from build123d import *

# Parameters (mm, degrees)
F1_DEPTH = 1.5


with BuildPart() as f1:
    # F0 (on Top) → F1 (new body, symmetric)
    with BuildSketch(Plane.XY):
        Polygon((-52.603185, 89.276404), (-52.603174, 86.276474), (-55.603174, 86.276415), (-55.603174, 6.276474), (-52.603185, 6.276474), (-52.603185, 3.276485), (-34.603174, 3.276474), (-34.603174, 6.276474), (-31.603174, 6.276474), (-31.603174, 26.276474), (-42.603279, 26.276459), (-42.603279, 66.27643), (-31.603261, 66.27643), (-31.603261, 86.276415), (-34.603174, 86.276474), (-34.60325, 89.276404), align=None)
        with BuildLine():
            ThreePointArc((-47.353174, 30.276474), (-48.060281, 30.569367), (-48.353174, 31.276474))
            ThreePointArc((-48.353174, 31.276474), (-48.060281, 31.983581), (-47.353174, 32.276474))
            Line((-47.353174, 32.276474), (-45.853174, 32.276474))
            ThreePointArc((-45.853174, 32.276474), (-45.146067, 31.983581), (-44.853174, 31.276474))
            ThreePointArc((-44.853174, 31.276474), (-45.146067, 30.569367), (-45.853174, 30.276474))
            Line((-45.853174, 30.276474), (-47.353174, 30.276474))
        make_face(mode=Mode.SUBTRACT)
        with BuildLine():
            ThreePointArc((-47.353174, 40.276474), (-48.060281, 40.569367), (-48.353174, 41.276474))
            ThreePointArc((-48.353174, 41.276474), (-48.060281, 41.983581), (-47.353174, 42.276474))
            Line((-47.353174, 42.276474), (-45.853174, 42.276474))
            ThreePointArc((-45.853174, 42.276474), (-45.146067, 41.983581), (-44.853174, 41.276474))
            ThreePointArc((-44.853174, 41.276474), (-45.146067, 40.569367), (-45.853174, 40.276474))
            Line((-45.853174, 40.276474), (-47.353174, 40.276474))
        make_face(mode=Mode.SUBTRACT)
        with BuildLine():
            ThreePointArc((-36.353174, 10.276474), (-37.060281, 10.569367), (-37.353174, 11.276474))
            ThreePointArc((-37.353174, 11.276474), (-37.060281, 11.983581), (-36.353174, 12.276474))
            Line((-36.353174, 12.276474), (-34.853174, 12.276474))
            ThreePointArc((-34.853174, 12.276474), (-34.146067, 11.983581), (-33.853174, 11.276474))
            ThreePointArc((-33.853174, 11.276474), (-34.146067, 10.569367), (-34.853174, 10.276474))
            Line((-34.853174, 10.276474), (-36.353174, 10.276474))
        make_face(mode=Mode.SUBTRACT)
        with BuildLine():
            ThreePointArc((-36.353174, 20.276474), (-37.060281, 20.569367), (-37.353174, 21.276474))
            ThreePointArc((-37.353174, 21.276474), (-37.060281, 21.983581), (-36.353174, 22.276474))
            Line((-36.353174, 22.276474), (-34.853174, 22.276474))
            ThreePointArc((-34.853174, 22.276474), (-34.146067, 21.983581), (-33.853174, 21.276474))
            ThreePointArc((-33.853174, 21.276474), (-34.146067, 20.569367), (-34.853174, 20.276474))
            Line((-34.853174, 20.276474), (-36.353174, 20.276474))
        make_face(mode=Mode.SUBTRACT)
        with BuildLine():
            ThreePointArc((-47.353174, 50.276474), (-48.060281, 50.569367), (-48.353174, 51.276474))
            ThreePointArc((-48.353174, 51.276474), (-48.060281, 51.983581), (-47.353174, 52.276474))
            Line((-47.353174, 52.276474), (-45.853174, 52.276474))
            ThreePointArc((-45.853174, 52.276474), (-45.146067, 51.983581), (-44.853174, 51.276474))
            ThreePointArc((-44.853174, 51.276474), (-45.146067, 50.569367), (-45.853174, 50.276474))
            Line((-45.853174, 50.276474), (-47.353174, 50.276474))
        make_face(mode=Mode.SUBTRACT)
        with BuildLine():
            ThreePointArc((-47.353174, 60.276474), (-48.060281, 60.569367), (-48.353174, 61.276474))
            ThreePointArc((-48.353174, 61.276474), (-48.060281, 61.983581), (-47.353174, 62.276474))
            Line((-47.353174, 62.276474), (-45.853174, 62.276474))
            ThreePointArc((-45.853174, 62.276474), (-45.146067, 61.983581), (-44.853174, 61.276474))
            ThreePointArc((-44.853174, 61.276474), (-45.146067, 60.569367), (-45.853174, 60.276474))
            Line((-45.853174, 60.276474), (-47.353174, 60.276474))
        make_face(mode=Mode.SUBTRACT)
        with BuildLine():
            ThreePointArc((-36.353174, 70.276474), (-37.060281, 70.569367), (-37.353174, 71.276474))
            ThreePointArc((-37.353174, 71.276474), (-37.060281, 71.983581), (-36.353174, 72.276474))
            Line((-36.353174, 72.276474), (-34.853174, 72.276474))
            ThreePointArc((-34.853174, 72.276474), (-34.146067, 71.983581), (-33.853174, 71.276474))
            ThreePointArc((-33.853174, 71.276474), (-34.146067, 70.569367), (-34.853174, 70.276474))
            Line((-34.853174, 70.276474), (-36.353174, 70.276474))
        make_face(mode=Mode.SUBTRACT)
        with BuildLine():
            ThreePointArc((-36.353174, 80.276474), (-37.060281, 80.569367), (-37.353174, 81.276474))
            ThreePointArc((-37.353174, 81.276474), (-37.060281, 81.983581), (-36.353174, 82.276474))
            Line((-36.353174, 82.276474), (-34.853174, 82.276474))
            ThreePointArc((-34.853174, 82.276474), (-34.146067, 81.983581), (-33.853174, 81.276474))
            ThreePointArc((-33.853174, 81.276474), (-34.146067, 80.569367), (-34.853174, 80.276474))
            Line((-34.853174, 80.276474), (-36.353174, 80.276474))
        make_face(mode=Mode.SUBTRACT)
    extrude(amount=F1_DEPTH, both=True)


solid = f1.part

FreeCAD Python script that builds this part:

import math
import FreeCAD as App
import Part
import Sketcher
Q = App.Units.Quantity


def add_polygon(sketch, points):
    """Adds a closed chain of lines whose ends are joined by coincident constraints."""
    first, n = sketch.GeometryCount, len(points)
    for a, b in zip(points, points[1:] + points[:1]):
        sketch.addGeometry(Part.LineSegment(App.Vector(*a, 0), App.Vector(*b, 0)), False)
    for i in range(n):
        sketch.addConstraint(Sketcher.Constraint("Coincident", first + i, 2, first + (i + 1) % n, 1))

doc = App.newDocument("Part")
params = doc.addObject("Spreadsheet::Sheet", "Params")
for row, (alias, value) in enumerate([
    ("sketch1_radius", "0.999999 mm"),
    ("sketch1_radius2", "0.999999 mm"),
    ("sketch1_radius3", "0.999999 mm"),
    ("sketch1_radius4", "0.999999 mm"),
    ("sketch1_radius5", "0.999999 mm"),
    ("pad1_length", "3 mm"),
], start=1):
    params.set(f"A{row}", alias)
    params.set(f"B{row}", "=" + value)
    params.setAlias(f"B{row}", alias)

body = doc.addObject("PartDesign::Body", "Body")

sketch1 = doc.addObject("Sketcher::SketchObject", "Sketch")
body.addObject(sketch1)
sketch1.AttachmentSupport = (doc.XY_Plane, [""])
sketch1.MapMode = "FlatFace"
add_polygon(sketch1, [(-52.603185, 89.276404), (-52.603174, 86.276474), (-55.603174, 86.276415), (-55.603174, 6.276474), (-52.603185, 6.276474), (-52.603185, 3.276485), (-34.603174, 3.276474), (-34.603174, 6.276474), (-31.603174, 6.276474), (-31.603174, 26.276474), (-42.603279, 26.276459), (-42.603279, 66.27643), (-31.603261, 66.27643), (-31.603261, 86.276415), (-34.603174, 86.276474), (-34.60325, 89.276404)])
sketch1.addGeometry(Part.LineSegment(App.Vector(-45.853174, 30.276474, 0), App.Vector(-47.353174, 30.276474, 0)), False)
sketch1.addGeometry(Part.ArcOfCircle(Part.Circle(App.Vector(-47.353175, 31.276473, 0), App.Vector(0, 0, 1), 0.999999), math.radians(179.999957), math.radians(270.000043)), False)
sketch1.addGeometry(Part.ArcOfCircle(Part.Circle(App.Vector(-47.353175, 31.276475, 0), App.Vector(0, 0, 1), 0.999999), math.radians(89.999957), math.radians(180.000043)), False)
sketch1.addGeometry(Part.LineSegment(App.Vector(-47.353174, 32.276474, 0), App.Vector(-45.853174, 32.276474, 0)), False)
sketch1.addGeometry(Part.ArcOfCircle(Part.Circle(App.Vector(-45.853173, 31.276475, 0), App.Vector(0, 0, 1), 0.999999), math.radians(-0.000043), math.radians(90.000043)), False)
sketch1.addGeometry(Part.ArcOfCircle(Part.Circle(App.Vector(-45.853173, 31.276473, 0), App.Vector(0, 0, 1), 0.999999), math.radians(-90.000043), math.radians(0.000043)), False)
sketch1.addGeometry(Part.LineSegment(App.Vector(-45.853174, 40.276474, 0), App.Vector(-47.353174, 40.276474, 0)), False)
sketch1.addGeometry(Part.ArcOfCircle(Part.Circle(App.Vector(-47.353175, 41.276473, 0), App.Vector(0, 0, 1), 0.999999), math.radians(179.999957), math.radians(270.000043)), False)
sketch1.addGeometry(Part.ArcOfCircle(Part.Circle(App.Vector(-47.353175, 41.276475, 0), App.Vector(0, 0, 1), 0.999999), math.radians(89.999957), math.radians(180.000043)), False)
sketch1.addGeometry(Part.LineSegment(App.Vector(-47.353174, 42.276474, 0), App.Vector(-45.853174, 42.276474, 0)), False)
sketch1.addGeometry(Part.ArcOfCircle(Part.Circle(App.Vector(-45.853173, 41.276475, 0), App.Vector(0, 0, 1), 0.999999), math.radians(-0.000043), math.radians(90.000043)), False)
sketch1.addGeometry(Part.ArcOfCircle(Part.Circle(App.Vector(-45.853173, 41.276473, 0), App.Vector(0, 0, 1), 0.999999), math.radians(-90.000043), math.radians(0.000043)), False)
sketch1.addGeometry(Part.LineSegment(App.Vector(-34.853174, 10.276474, 0), App.Vector(-36.353174, 10.276474, 0)), False)
sketch1.addGeometry(Part.ArcOfCircle(Part.Circle(App.Vector(-36.353175, 11.276473, 0), App.Vector(0, 0, 1), 0.999999), math.radians(179.999957), math.radians(270.000043)), False)
sketch1.addGeometry(Part.ArcOfCircle(Part.Circle(App.Vector(-36.353175, 11.276475, 0), App.Vector(0, 0, 1), 0.999999), math.radians(89.999957), math.radians(180.000043)), False)
sketch1.addGeometry(Part.LineSegment(App.Vector(-36.353174, 12.276474, 0), App.Vector(-34.853174, 12.276474, 0)), False)
sketch1.addGeometry(Part.ArcOfCircle(Part.Circle(App.Vector(-34.853173, 11.276475, 0), App.Vector(0, 0, 1), 0.999999), math.radians(-0.000043), math.radians(90.000043)), False)
sketch1.addGeometry(Part.ArcOfCircle(Part.Circle(App.Vector(-34.853173, 11.276473, 0), App.Vector(0, 0, 1), 0.999999), math.radians(-90.000043), math.radians(0.000043)), False)
sketch1.addGeometry(Part.LineSegment(App.Vector(-34.853174, 20.276474, 0), App.Vector(-36.353174, 20.276474, 0)), False)
sketch1.addGeometry(Part.ArcOfCircle(Part.Circle(App.Vector(-36.353175, 21.276473, 0), App.Vector(0, 0, 1), 0.999999), math.radians(179.999957), math.radians(270.000043)), False)
sketch1.addGeometry(Part.ArcOfCircle(Part.Circle(App.Vector(-36.353175, 21.276475, 0), App.Vector(0, 0, 1), 0.999999), math.radians(89.999957), math.radians(180.000043)), False)
sketch1.addGeometry(Part.LineSegment(App.Vector(-36.353174, 22.276474, 0), App.Vector(-34.853174, 22.276474, 0)), False)
sketch1.addGeometry(Part.ArcOfCircle(Part.Circle(App.Vector(-34.853173, 21.276475, 0), App.Vector(0, 0, 1), 0.999999), math.radians(-0.000043), math.radians(90.000043)), False)
sketch1.addGeometry(Part.ArcOfCircle(Part.Circle(App.Vector(-34.853173, 21.276473, 0), App.Vector(0, 0, 1), 0.999999), math.radians(-90.000043), math.radians(0.000043)), False)
sketch1.addGeometry(Part.LineSegment(App.Vector(-45.853174, 50.276474, 0), App.Vector(-47.353174, 50.276474, 0)), False)
sketch1.addGeometry(Part.ArcOfCircle(Part.Circle(App.Vector(-47.353175, 51.276473, 0), App.Vector(0, 0, 1), 0.999999), math.radians(179.999957), math.radians(270.000043)), False)
sketch1.addGeometry(Part.ArcOfCircle(Part.Circle(App.Vector(-47.353175, 51.276475, 0), App.Vector(0, 0, 1), 0.999999), math.radians(89.999957), math.radians(180.000043)), False)
sketch1.addGeometry(Part.LineSegment(App.Vector(-47.353174, 52.276474, 0), App.Vector(-45.853174, 52.276474, 0)), False)
sketch1.addGeometry(Part.ArcOfCircle(Part.Circle(App.Vector(-45.853173, 51.276475, 0), App.Vector(0, 0, 1), 0.999999), math.radians(-0.000043), math.radians(90.000043)), False)
sketch1.addGeometry(Part.ArcOfCircle(Part.Circle(App.Vector(-45.853173, 51.276473, 0), App.Vector(0, 0, 1), 0.999999), math.radians(-90.000043), math.radians(0.000043)), False)
sketch1.addGeometry(Part.LineSegment(App.Vector(-45.853174, 60.276474, 0), App.Vector(-47.353174, 60.276474, 0)), False)
sketch1.addGeometry(Part.ArcOfCircle(Part.Circle(App.Vector(-47.353175, 61.276473, 0), App.Vector(0, 0, 1), 0.999999), math.radians(179.999957), math.radians(270.000043)), False)
sketch1.addGeometry(Part.ArcOfCircle(Part.Circle(App.Vector(-47.353175, 61.276475, 0), App.Vector(0, 0, 1), 0.999999), math.radians(89.999957), math.radians(180.000043)), False)
sketch1.addGeometry(Part.LineSegment(App.Vector(-47.353174, 62.276474, 0), App.Vector(-45.853174, 62.276474, 0)), False)
sketch1.addGeometry(Part.ArcOfCircle(Part.Circle(App.Vector(-45.853173, 61.276475, 0), App.Vector(0, 0, 1), 0.999999), math.radians(-0.000043), math.radians(90.000043)), False)
sketch1.addGeometry(Part.ArcOfCircle(Part.Circle(App.Vector(-45.853173, 61.276473, 0), App.Vector(0, 0, 1), 0.999999), math.radians(-90.000043), math.radians(0.000043)), False)
sketch1.addGeometry(Part.LineSegment(App.Vector(-34.853174, 70.276474, 0), App.Vector(-36.353174, 70.276474, 0)), False)
sketch1.addGeometry(Part.ArcOfCircle(Part.Circle(App.Vector(-36.353175, 71.276473, 0), App.Vector(0, 0, 1), 0.999999), math.radians(179.999957), math.radians(270.000043)), False)
sketch1.addGeometry(Part.ArcOfCircle(Part.Circle(App.Vector(-36.353175, 71.276475, 0), App.Vector(0, 0, 1), 0.999999), math.radians(89.999957), math.radians(180.000043)), False)
sketch1.addGeometry(Part.LineSegment(App.Vector(-36.353174, 72.276474, 0), App.Vector(-34.853174, 72.276474, 0)), False)
sketch1.addGeometry(Part.ArcOfCircle(Part.Circle(App.Vector(-34.853173, 71.276475, 0), App.Vector(0, 0, 1), 0.999999), math.radians(-0.000043), math.radians(90.000043)), False)
sketch1.addGeometry(Part.ArcOfCircle(Part.Circle(App.Vector(-34.853173, 71.276473, 0), App.Vector(0, 0, 1), 0.999999), math.radians(-90.000043), math.radians(0.000043)), False)
sketch1.addGeometry(Part.LineSegment(App.Vector(-34.853174, 80.276474, 0), App.Vector(-36.353174, 80.276474, 0)), False)
sketch1.addGeometry(Part.ArcOfCircle(Part.Circle(App.Vector(-36.353175, 81.276473, 0), App.Vector(0, 0, 1), 0.999999), math.radians(179.999957), math.radians(270.000043)), False)
sketch1.addGeometry(Part.ArcOfCircle(Part.Circle(App.Vector(-36.353175, 81.276475, 0), App.Vector(0, 0, 1), 0.999999), math.radians(89.999957), math.radians(180.000043)), False)
sketch1.addGeometry(Part.LineSegment(App.Vector(-36.353174, 82.276474, 0), App.Vector(-34.853174, 82.276474, 0)), False)
sketch1.addGeometry(Part.ArcOfCircle(Part.Circle(App.Vector(-34.853173, 81.276475, 0), App.Vector(0, 0, 1), 0.999999), math.radians(-0.000043), math.radians(90.000043)), False)
sketch1.addGeometry(Part.ArcOfCircle(Part.Circle(App.Vector(-34.853173, 81.276473, 0), App.Vector(0, 0, 1), 0.999999), math.radians(-90.000043), math.radians(0.000043)), False)
sketch1.addConstraint([
    Sketcher.Constraint("Coincident", 16, 2, 17, 2),
    Sketcher.Constraint("Coincident", 17, 1, 18, 2),
    Sketcher.Constraint("Coincident", 18, 1, 19, 1),
    Sketcher.Constraint("Coincident", 19, 2, 20, 2),
    Sketcher.Constraint("Coincident", 20, 1, 21, 2),
    Sketcher.Constraint("Coincident", 21, 1, 16, 1),
    Sketcher.Constraint("Coincident", 22, 2, 23, 2),
    Sketcher.Constraint("Coincident", 23, 1, 24, 2),
    Sketcher.Constraint("Coincident", 24, 1, 25, 1),
    Sketcher.Constraint("Coincident", 25, 2, 26, 2),
    Sketcher.Constraint("Coincident", 26, 1, 27, 2),
    Sketcher.Constraint("Coincident", 27, 1, 22, 1),
    Sketcher.Constraint("Coincident", 28, 2, 29, 2),
    Sketcher.Constraint("Coincident", 29, 1, 30, 2),
    Sketcher.Constraint("Coincident", 30, 1, 31, 1),
    Sketcher.Constraint("Coincident", 31, 2, 32, 2),
    Sketcher.Constraint("Coincident", 32, 1, 33, 2),
    Sketcher.Constraint("Coincident", 33, 1, 28, 1),
    Sketcher.Constraint("Coincident", 34, 2, 35, 2),
    Sketcher.Constraint("Coincident", 35, 1, 36, 2),
    Sketcher.Constraint("Coincident", 36, 1, 37, 1),
    Sketcher.Constraint("Coincident", 37, 2, 38, 2),
    Sketcher.Constraint("Coincident", 38, 1, 39, 2),
    Sketcher.Constraint("Coincident", 39, 1, 34, 1),
    Sketcher.Constraint("Coincident", 40, 2, 41, 2),
    Sketcher.Constraint("Coincident", 41, 1, 42, 2),
    Sketcher.Constraint("Coincident", 42, 1, 43, 1),
    Sketcher.Constraint("Coincident", 43, 2, 44, 2),
    Sketcher.Constraint("Coincident", 44, 1, 45, 2),
    Sketcher.Constraint("Coincident", 45, 1, 40, 1),
    Sketcher.Constraint("Coincident", 46, 2, 47, 2),
    Sketcher.Constraint("Coincident", 47, 1, 48, 2),
    Sketcher.Constraint("Coincident", 48, 1, 49, 1),
    Sketcher.Constraint("Coincident", 49, 2, 50, 2),
    Sketcher.Constraint("Coincident", 50, 1, 51, 2),
    Sketcher.Constraint("Coincident", 51, 1, 46, 1),
    Sketcher.Constraint("Coincident", 52, 2, 53, 2),
    Sketcher.Constraint("Coincident", 53, 1, 54, 2),
    Sketcher.Constraint("Coincident", 54, 1, 55, 1),
    Sketcher.Constraint("Coincident", 55, 2, 56, 2),
    Sketcher.Constraint("Coincident", 56, 1, 57, 2),
    Sketcher.Constraint("Coincident", 57, 1, 52, 1),
    Sketcher.Constraint("Coincident", 58, 2, 59, 2),
    Sketcher.Constraint("Coincident", 59, 1, 60, 2),
    Sketcher.Constraint("Coincident", 60, 1, 61, 1),
    Sketcher.Constraint("Coincident", 61, 2, 62, 2),
    Sketcher.Constraint("Coincident", 62, 1, 63, 2),
    Sketcher.Constraint("Coincident", 63, 1, 58, 1),
    Sketcher.Constraint("Vertical", 2),
    Sketcher.Constraint("Horizontal", 3),
    Sketcher.Constraint("Vertical", 4),
    Sketcher.Constraint("Vertical", 6),
    Sketcher.Constraint("Horizontal", 7),
    Sketcher.Constraint("Vertical", 8),
    Sketcher.Constraint("Vertical", 10),
    Sketcher.Constraint("Horizontal", 11),
    Sketcher.Constraint("Vertical", 12),
    Sketcher.Constraint("Horizontal", 15),
    Sketcher.Constraint("Horizontal", 16),
    Sketcher.Constraint("Horizontal", 19),
    Sketcher.Constraint("Horizontal", 22),
    Sketcher.Constraint("Horizontal", 25),
    Sketcher.Constraint("Horizontal", 28),
    Sketcher.Constraint("Horizontal", 31),
    Sketcher.Constraint("Horizontal", 34),
    Sketcher.Constraint("Horizontal", 37),
    Sketcher.Constraint("Horizontal", 40),
    Sketcher.Constraint("Horizontal", 43),
    Sketcher.Constraint("Horizontal", 46),
    Sketcher.Constraint("Horizontal", 49),
    Sketcher.Constraint("Horizontal", 52),
    Sketcher.Constraint("Horizontal", 55),
    Sketcher.Constraint("Horizontal", 58),
    Sketcher.Constraint("Horizontal", 61),
    Sketcher.Constraint("Coincident", 18, 3, 17, 3),
    Sketcher.Constraint("Coincident", 21, 3, 20, 3),
    Sketcher.Constraint("Coincident", 24, 3, 23, 3),
    Sketcher.Constraint("Coincident", 27, 3, 26, 3),
    Sketcher.Constraint("Coincident", 30, 3, 29, 3),
    Sketcher.Constraint("Coincident", 33, 3, 32, 3),
    Sketcher.Constraint("Coincident", 36, 3, 35, 3),
    Sketcher.Constraint("Coincident", 39, 3, 38, 3),
    Sketcher.Constraint("Coincident", 42, 3, 41, 3),
    Sketcher.Constraint("Coincident", 45, 3, 44, 3),
    Sketcher.Constraint("Coincident", 48, 3, 47, 3),
    Sketcher.Constraint("Coincident", 51, 3, 50, 3),
    Sketcher.Constraint("Coincident", 54, 3, 53, 3),
    Sketcher.Constraint("Coincident", 57, 3, 56, 3),
    Sketcher.Constraint("Coincident", 60, 3, 59, 3),
    Sketcher.Constraint("Coincident", 63, 3, 62, 3),
    Sketcher.Constraint("Radius", 17, Q("0.999999 mm")),
    Sketcher.Constraint("Radius", 23, Q("0.999999 mm")),
    Sketcher.Constraint("Radius", 29, Q("0.999999 mm")),
    Sketcher.Constraint("Radius", 35, Q("0.999999 mm")),
    Sketcher.Constraint("Radius", 41, Q("0.999999 mm")),
    Sketcher.Constraint("Radius", 47, Q("0.999999 mm")),
    Sketcher.Constraint("Radius", 53, Q("0.999999 mm")),
    Sketcher.Constraint("Radius", 59, Q("0.999999 mm")),
    Sketcher.Constraint("DistanceX", 7, 1, 7, 2, Q("3 mm")),
    Sketcher.Constraint("DistanceY", 6, 1, 6, 2, Q("3 mm")),
    Sketcher.Constraint("DistanceY", 8, 1, 8, 2, Q("20 mm")),
    Sketcher.Constraint("Distance", 1, Q("3 mm")),
    Sketcher.Constraint("DistanceX", 16, 2, 16, 1, Q("1.5 mm")),
    Sketcher.Constraint("DistanceX", 19, 1, 19, 2, Q("1.5 mm")),
    Sketcher.Constraint("DistanceX", 22, 2, 22, 1, Q("1.5 mm")),
    Sketcher.Constraint("DistanceX", 25, 1, 25, 2, Q("1.5 mm")),
    Sketcher.Constraint("DistanceX", 28, 2, 28, 1, Q("1.5 mm")),
    Sketcher.Constraint("DistanceX", 31, 1, 31, 2, Q("1.5 mm")),
    Sketcher.Constraint("DistanceX", 34, 2, 34, 1, Q("1.5 mm")),
    Sketcher.Constraint("DistanceX", 37, 1, 37, 2, Q("1.5 mm")),
    Sketcher.Constraint("DistanceX", 40, 2, 40, 1, Q("1.5 mm")),
    Sketcher.Constraint("DistanceX", 43, 1, 43, 2, Q("1.5 mm")),
    Sketcher.Constraint("DistanceX", 46, 2, 46, 1, Q("1.5 mm")),
    Sketcher.Constraint("DistanceX", 49, 1, 49, 2, Q("1.5 mm")),
    Sketcher.Constraint("DistanceX", 52, 2, 52, 1, Q("1.5 mm")),
    Sketcher.Constraint("DistanceX", 55, 1, 55, 2, Q("1.5 mm")),
    Sketcher.Constraint("DistanceX", 58, 2, 58, 1, Q("1.5 mm")),
    Sketcher.Constraint("DistanceX", 61, 1, 61, 2, Q("1.5 mm")),
    Sketcher.Constraint("DistanceX", 3, 1, 3, 2, Q("2.999989 mm")),
    Sketcher.Constraint("DistanceX", 11, 1, 11, 2, Q("11.000018 mm")),
    Sketcher.Constraint("DistanceY", 2, 2, 2, 1, Q("79.999941 mm")),
    Sketcher.Constraint("DistanceY", 4, 2, 4, 1, Q("2.999989 mm")),
    Sketcher.Constraint("DistanceY", 10, 1, 10, 2, Q("39.999971 mm")),
    Sketcher.Constraint("Distance", 0, Q("2.99993 mm")),
    Sketcher.Constraint("Distance", 5, Q("18.000011 mm")),
    Sketcher.Constraint("Distance", 14, Q("2.99993 mm")),
    Sketcher.Constraint("DistanceX", 15, 2, 15, 1, Q("17.999935 mm")),
    Sketcher.Constraint("DistanceY", 12, 1, 12, 2, Q("19.999985 mm")),
    Sketcher.Constraint("DistanceX", 9, 2, -1, 1, Q("42.603279 mm")),
    Sketcher.Constraint("DistanceY", -1, 1, 9, 2, Q("26.276459 mm")),
    Sketcher.Constraint("DistanceX", 14, 2, -1, 1, Q("34.60325 mm")),
    Sketcher.Constraint("Distance", 9, Q("11.000105 mm")),
    Sketcher.Constraint("Distance", 13, Q("2.999913 mm")),
    Sketcher.Constraint("DistanceX", 17, 3, -1, 1, Q("47.353175 mm")),
    Sketcher.Constraint("DistanceY", -1, 1, 17, 3, Q("31.276473 mm")),
    Sketcher.Constraint("DistanceX", 20, 3, -1, 1, Q("45.853173 mm")),
    Sketcher.Constraint("DistanceX", 23, 3, -1, 1, Q("47.353175 mm")),
    Sketcher.Constraint("DistanceY", -1, 1, 23, 3, Q("41.276473 mm")),
    Sketcher.Constraint("DistanceX", 26, 3, -1, 1, Q("45.853173 mm")),
    Sketcher.Constraint("DistanceX", 29, 3, -1, 1, Q("36.353175 mm")),
    Sketcher.Constraint("DistanceY", -1, 1, 29, 3, Q("11.276473 mm")),
    Sketcher.Constraint("DistanceX", 32, 3, -1, 1, Q("34.853173 mm")),
    Sketcher.Constraint("DistanceX", 35, 3, -1, 1, Q("36.353175 mm")),
    Sketcher.Constraint("DistanceY", -1, 1, 35, 3, Q("21.276473 mm")),
    Sketcher.Constraint("DistanceX", 38, 3, -1, 1, Q("34.853173 mm")),
    Sketcher.Constraint("DistanceX", 41, 3, -1, 1, Q("47.353175 mm")),
    Sketcher.Constraint("DistanceY", -1, 1, 41, 3, Q("51.276473 mm")),
    Sketcher.Constraint("DistanceX", 44, 3, -1, 1, Q("45.853173 mm")),
    Sketcher.Constraint("DistanceX", 47, 3, -1, 1, Q("47.353175 mm")),
    Sketcher.Constraint("DistanceY", -1, 1, 47, 3, Q("61.276473 mm")),
    Sketcher.Constraint("DistanceX", 50, 3, -1, 1, Q("45.853173 mm")),
    Sketcher.Constraint("DistanceX", 53, 3, -1, 1, Q("36.353175 mm")),
    Sketcher.Constraint("DistanceY", -1, 1, 53, 3, Q("71.276473 mm")),
    Sketcher.Constraint("DistanceX", 56, 3, -1, 1, Q("34.853173 mm")),
    Sketcher.Constraint("DistanceX", 59, 3, -1, 1, Q("36.353175 mm")),
    Sketcher.Constraint("DistanceY", -1, 1, 59, 3, Q("81.276473 mm")),
    Sketcher.Constraint("DistanceX", 62, 3, -1, 1, Q("34.853173 mm")),
    Sketcher.Constraint("DistanceY", -1, 1, 0, 2, Q("86.276474 mm")),
    Sketcher.Constraint("DistanceY", -1, 1, 1, 2, Q("86.276415 mm")),
    Sketcher.Constraint("DistanceY", -1, 1, 5, 2, Q("3.276474 mm")),
    Sketcher.Constraint("DistanceX", 16, 2, -1, 1, Q("47.353174 mm")),
    Sketcher.Constraint("DistanceY", -1, 1, 17, 1, Q("31.276474 mm")),
    Sketcher.Constraint("DistanceX", 18, 1, -1, 1, Q("47.353174 mm")),
    Sketcher.Constraint("DistanceY", -1, 1, 20, 1, Q("31.276474 mm")),
    Sketcher.Constraint("DistanceX", 22, 2, -1, 1, Q("47.353174 mm")),
    Sketcher.Constraint("DistanceY", -1, 1, 23, 1, Q("41.276474 mm")),
    Sketcher.Constraint("DistanceX", 24, 1, -1, 1, Q("47.353174 mm")),
    Sketcher.Constraint("DistanceY", -1, 1, 26, 1, Q("41.276474 mm")),
    Sketcher.Constraint("DistanceX", 28, 2, -1, 1, Q("36.353174 mm")),
    Sketcher.Constraint("DistanceY", -1, 1, 29, 1, Q("11.276474 mm")),
    Sketcher.Constraint("DistanceX", 30, 1, -1, 1, Q("36.353174 mm")),
    Sketcher.Constraint("DistanceY", -1, 1, 32, 1, Q("11.276474 mm")),
    Sketcher.Constraint("DistanceX", 34, 2, -1, 1, Q("36.353174 mm")),
    Sketcher.Constraint("DistanceY", -1, 1, 35, 1, Q("21.276474 mm")),
    Sketcher.Constraint("DistanceX", 36, 1, -1, 1, Q("36.353174 mm")),
    Sketcher.Constraint("DistanceY", -1, 1, 38, 1, Q("21.276474 mm")),
    Sketcher.Constraint("DistanceX", 40, 2, -1, 1, Q("47.353174 mm")),
    Sketcher.Constraint("DistanceY", -1, 1, 41, 1, Q("51.276474 mm")),
    Sketcher.Constraint("DistanceX", 42, 1, -1, 1, Q("47.353174 mm")),
    Sketcher.Constraint("DistanceY", -1, 1, 44, 1, Q("51.276474 mm")),
    Sketcher.Constraint("DistanceX", 46, 2, -1, 1, Q("47.353174 mm")),
    Sketcher.Constraint("DistanceY", -1, 1, 47, 1, Q("61.276474 mm")),
    Sketcher.Constraint("DistanceX", 48, 1, -1, 1, Q("47.353174 mm")),
    Sketcher.Constraint("DistanceY", -1, 1, 50, 1, Q("61.276474 mm")),
    Sketcher.Constraint("DistanceX", 52, 2, -1, 1, Q("36.353174 mm")),
    Sketcher.Constraint("DistanceY", -1, 1, 53, 1, Q("71.276474 mm")),
    Sketcher.Constraint("DistanceX", 54, 1, -1, 1, Q("36.353174 mm")),
    Sketcher.Constraint("DistanceY", -1, 1, 56, 1, Q("71.276474 mm")),
    Sketcher.Constraint("DistanceX", 58, 2, -1, 1, Q("36.353174 mm")),
    Sketcher.Constraint("DistanceY", -1, 1, 59, 1, Q("81.276474 mm")),
    Sketcher.Constraint("DistanceX", 60, 1, -1, 1, Q("36.353174 mm")),
    Sketcher.Constraint("DistanceY", -1, 1, 62, 1, Q("81.276474 mm")),
])
sketch1.setExpression("Constraints[106]", "Params.sketch1_radius")
sketch1.setExpression("Constraints[107]", "Params.sketch1_radius2")
sketch1.setExpression("Constraints[108]", "Params.sketch1_radius3")
sketch1.setExpression("Constraints[109]", "Params.sketch1_radius4")
sketch1.setExpression("Constraints[110]", "Params.sketch1_radius5")
pad1 = doc.addObject("PartDesign::Pad", "Pad")
body.addObject(pad1)
pad1.Profile = sketch1
pad1.setExpression("Length", "Params.pad1_length")
pad1.Midplane = True

doc.recompute()
